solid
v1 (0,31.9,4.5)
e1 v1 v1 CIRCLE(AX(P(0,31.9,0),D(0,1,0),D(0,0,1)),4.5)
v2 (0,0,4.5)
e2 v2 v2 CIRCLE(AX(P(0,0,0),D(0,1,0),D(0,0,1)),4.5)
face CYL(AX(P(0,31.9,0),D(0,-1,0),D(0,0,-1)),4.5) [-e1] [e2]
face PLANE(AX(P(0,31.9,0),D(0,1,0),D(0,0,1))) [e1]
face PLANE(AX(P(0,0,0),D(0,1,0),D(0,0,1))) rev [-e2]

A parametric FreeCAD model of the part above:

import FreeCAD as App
import Part
import Sketcher
Q = App.Units.Quantity

doc = App.newDocument("Part")
params = doc.addObject("Spreadsheet::Sheet", "Params")
for row, (alias, value) in enumerate([
    ("sketch1_diameter", "9 mm"),
    ("pad1_length", "31.9 mm"),
], start=1):
    params.set(f"A{row}", alias)
    params.set(f"B{row}", "=" + value)
    params.setAlias(f"B{row}", alias)

body = doc.addObject("PartDesign::Body", "Body")

# Sketch on XZ plane
sketch1 = body.newObject("Sketcher::SketchObject", "Sketch")
sketch1.AttachmentSupport = (doc.getObject("XZ_Plane"), [""])
sketch1.MapMode = "FlatFace"
sketch1.addGeometry(Part.Circle(App.Vector(0, 0, 0), App.Vector(0, 0, 1), 4.5), False)
sketch1.addConstraint([
    Sketcher.Constraint("Coincident", 0, 3, -1, 1),
    Sketcher.Constraint("Diameter", 0, Q("9 mm")),
])
sketch1.setExpression("Constraints[1]", "Params.sketch1_diameter")
pad1 = body.newObject("PartDesign::Pad", "Pad")
pad1.Profile = sketch1
pad1.setExpression("Length", "Params.pad1_length")
pad1.Reversed = True

doc.recompute()
